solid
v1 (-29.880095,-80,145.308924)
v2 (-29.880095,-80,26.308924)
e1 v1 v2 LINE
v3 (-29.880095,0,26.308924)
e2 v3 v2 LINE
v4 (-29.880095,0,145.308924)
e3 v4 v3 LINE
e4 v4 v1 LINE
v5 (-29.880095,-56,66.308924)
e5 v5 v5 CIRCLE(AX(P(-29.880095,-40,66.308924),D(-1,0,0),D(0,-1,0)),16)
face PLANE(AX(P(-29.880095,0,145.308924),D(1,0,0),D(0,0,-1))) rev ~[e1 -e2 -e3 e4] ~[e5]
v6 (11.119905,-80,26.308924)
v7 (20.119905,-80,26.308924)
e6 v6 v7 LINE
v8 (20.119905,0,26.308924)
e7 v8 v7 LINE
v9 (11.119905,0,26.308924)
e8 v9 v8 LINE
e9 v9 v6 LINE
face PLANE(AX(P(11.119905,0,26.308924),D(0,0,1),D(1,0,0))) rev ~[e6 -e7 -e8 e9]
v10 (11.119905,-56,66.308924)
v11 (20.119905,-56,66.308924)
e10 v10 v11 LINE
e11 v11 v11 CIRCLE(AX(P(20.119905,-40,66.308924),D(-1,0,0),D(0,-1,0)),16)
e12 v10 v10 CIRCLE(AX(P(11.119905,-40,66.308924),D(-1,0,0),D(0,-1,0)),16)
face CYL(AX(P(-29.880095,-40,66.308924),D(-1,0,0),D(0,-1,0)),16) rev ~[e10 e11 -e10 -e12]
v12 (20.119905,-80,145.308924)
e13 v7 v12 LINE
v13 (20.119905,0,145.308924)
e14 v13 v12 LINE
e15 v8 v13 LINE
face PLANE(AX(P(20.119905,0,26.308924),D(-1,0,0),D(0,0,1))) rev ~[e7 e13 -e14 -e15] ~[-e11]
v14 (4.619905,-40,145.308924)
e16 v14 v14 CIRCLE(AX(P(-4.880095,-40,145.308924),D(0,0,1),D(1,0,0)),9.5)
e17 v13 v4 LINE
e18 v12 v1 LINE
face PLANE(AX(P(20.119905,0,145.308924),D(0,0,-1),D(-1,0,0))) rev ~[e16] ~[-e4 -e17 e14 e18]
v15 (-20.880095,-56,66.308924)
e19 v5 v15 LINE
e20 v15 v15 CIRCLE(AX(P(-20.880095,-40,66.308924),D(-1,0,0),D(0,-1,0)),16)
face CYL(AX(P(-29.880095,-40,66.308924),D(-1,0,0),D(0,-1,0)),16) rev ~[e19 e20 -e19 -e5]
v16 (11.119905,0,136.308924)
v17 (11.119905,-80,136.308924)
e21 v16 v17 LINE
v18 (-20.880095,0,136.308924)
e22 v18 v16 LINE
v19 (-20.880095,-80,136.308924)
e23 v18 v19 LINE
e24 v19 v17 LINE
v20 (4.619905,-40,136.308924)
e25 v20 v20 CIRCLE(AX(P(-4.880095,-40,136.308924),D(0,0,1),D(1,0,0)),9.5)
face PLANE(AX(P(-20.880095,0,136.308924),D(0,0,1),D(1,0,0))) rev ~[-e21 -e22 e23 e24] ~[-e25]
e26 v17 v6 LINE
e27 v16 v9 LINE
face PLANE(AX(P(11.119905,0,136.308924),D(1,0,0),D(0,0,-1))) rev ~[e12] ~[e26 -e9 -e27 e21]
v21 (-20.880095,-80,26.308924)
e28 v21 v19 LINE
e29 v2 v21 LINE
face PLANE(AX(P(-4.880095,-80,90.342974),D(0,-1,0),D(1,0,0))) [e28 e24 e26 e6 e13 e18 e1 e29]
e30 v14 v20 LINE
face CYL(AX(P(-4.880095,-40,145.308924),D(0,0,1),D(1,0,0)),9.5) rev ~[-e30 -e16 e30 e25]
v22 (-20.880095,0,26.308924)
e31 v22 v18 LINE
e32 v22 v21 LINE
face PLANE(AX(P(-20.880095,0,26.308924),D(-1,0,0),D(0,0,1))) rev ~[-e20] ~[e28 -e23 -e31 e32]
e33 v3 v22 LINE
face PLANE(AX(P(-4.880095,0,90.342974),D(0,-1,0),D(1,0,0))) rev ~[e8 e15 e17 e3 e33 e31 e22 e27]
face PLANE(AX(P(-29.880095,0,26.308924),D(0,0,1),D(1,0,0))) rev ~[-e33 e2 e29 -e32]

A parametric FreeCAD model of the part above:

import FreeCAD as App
import Part
import Sketcher


def add_polygon(sketch, points):
    """Adds a closed chain of lines whose ends are joined by coincident constraints."""
    first, n = sketch.GeometryCount, len(points)
    for a, b in zip(points, points[1:] + points[:1]):
        sketch.addGeometry(Part.LineSegment(App.Vector(*a, 0), App.Vector(*b, 0)), False)
    for i in range(n):
        sketch.addConstraint(Sketcher.Constraint("Coincident", first + i, 2, first + (i + 1) % n, 1))

doc = App.newDocument("Part")
params = doc.addObject("Spreadsheet::Sheet", "Params")
for row, (alias, value) in enumerate([
    ("sketch1_width", "9 mm"),
    ("sketch1_width2", "32 mm"),
    ("sketch1_height", "110 mm"),
    ("sketch1_height2", "119 mm"),
    ("pad1_length", "80 mm"),
    ("sketch2_diameter", "32 mm"),
    ("sketch3_diameter", "19 mm"),
], start=1):
    params.set(f"A{row}", alias)
    params.set(f"B{row}", "=" + value)
    params.setAlias(f"B{row}", alias)

body = doc.addObject("PartDesign::Body", "Body")

sketch1 = body.newObject("Sketcher::SketchObject", "Sketch")
sketch1.AttachmentSupport = (doc.getObject("XZ_Plane"), [""])
sketch1.MapMode = "FlatFace"
add_polygon(sketch1, [(-29.880095, 26.308924), (-20.880095, 26.308924), (-20.880095, 136.308924), (11.119905, 136.308924), (11.119905, 26.308924), (20.119905, 26.308924), (20.119905, 145.308924), (-29.880095, 145.308924)])
sketch1.addConstraint(Sketcher.Constraint("Horizontal", 0))
sketch1.addConstraint(Sketcher.Constraint("Vertical", 1))
sketch1.addConstraint(Sketcher.Constraint("Horizontal", 2))
sketch1.addConstraint(Sketcher.Constraint("Vertical", 3))
sketch1.addConstraint(Sketcher.Constraint("Horizontal", 4))
sketch1.addConstraint(Sketcher.Constraint("Vertical", 5))
sketch1.addConstraint(Sketcher.Constraint("Horizontal", 6))
sketch1.addConstraint(Sketcher.Constraint("Vertical", 7))
sketch1.addConstraint(Sketcher.Constraint("Horizontal", 0, 2, 3, 2))
sketch1.addConstraint(Sketcher.Constraint("Equal", 0, 4))
sketch1.addConstraint(Sketcher.Constraint("DistanceX", 0, 1, 0, 2, 9.0))
sketch1.addConstraint(Sketcher.Constraint("DistanceX", 2, 1, 2, 2, 32.0))
sketch1.addConstraint(Sketcher.Constraint("DistanceY", 1, 1, 1, 2, 110.0))
sketch1.addConstraint(Sketcher.Constraint("DistanceY", 5, 1, 5, 2, 119.0))
sketch1.addConstraint(Sketcher.Constraint("DistanceX", 0, 2, -1, 1, 20.880095))
sketch1.addConstraint(Sketcher.Constraint("DistanceY", -1, 1, 0, 2, 26.308924))
sketch1.setExpression("Constraints[18]", "Params.sketch1_width")
sketch1.setExpression("Constraints[19]", "Params.sketch1_width2")
sketch1.setExpression("Constraints[20]", "Params.sketch1_height")
sketch1.setExpression("Constraints[21]", "Params.sketch1_height2")
pad1 = body.newObject("PartDesign::Pad", "Pad")
pad1.Profile = sketch1
pad1.setExpression("Length", "Params.pad1_length")

sketch2 = body.newObject("Sketcher::SketchObject", "Sketch001")
sketch2.AttachmentSupport = (doc.getObject("YZ_Plane"), [""])
sketch2.MapMode = "FlatFace"
sketch2.AttachmentOffset = App.Placement(App.Vector(0, 0, -29.880095), App.Rotation())
sketch2.addGeometry(Part.Circle(App.Vector(-40, 66.308924, 0), App.Vector(0, 0, 1), 16), False)
sketch2.addConstraint(Sketcher.Constraint("Diameter", 0, 32.0))
sketch2.addConstraint(Sketcher.Constraint("DistanceX", 0, 3, -1, 1, 40.0))
sketch2.addConstraint(Sketcher.Constraint("DistanceY", -1, 1, 0, 3, 66.308924))
sketch2.setExpression("Constraints[0]", "Params.sketch2_diameter")
pocket1 = body.newObject("PartDesign::Pocket", "Pocket")
pocket1.Profile = sketch2
pocket1.Type = "ThroughAll"
pocket1.Reversed = True

sketch3 = body.newObject("Sketcher::SketchObject", "Sketch002")
sketch3.AttachmentSupport = (doc.getObject("XY_Plane"), [""])
sketch3.MapMode = "FlatFace"
sketch3.AttachmentOffset = App.Placement(App.Vector(0, 0, 145.308924), App.Rotation())
sketch3.addGeometry(Part.Circle(App.Vector(-4.880095, -40, 0), App.Vector(0, 0, 1), 9.5), False)
sketch3.addConstraint(Sketcher.Constraint("Diameter", 0, 19.0))
sketch3.addConstraint(Sketcher.Constraint("DistanceY", 0, 3, -1, 1, 40.0))
sketch3.addConstraint(Sketcher.Constraint("DistanceX", 0, 3, -1, 1, 4.880095))
sketch3.setExpression("Constraints[0]", "Params.sketch3_diameter")
pocket2 = body.newObject("PartDesign::Pocket", "Pocket001")
pocket2.Profile = sketch3
pocket2.Type = "ThroughAll"

doc.recompute()
